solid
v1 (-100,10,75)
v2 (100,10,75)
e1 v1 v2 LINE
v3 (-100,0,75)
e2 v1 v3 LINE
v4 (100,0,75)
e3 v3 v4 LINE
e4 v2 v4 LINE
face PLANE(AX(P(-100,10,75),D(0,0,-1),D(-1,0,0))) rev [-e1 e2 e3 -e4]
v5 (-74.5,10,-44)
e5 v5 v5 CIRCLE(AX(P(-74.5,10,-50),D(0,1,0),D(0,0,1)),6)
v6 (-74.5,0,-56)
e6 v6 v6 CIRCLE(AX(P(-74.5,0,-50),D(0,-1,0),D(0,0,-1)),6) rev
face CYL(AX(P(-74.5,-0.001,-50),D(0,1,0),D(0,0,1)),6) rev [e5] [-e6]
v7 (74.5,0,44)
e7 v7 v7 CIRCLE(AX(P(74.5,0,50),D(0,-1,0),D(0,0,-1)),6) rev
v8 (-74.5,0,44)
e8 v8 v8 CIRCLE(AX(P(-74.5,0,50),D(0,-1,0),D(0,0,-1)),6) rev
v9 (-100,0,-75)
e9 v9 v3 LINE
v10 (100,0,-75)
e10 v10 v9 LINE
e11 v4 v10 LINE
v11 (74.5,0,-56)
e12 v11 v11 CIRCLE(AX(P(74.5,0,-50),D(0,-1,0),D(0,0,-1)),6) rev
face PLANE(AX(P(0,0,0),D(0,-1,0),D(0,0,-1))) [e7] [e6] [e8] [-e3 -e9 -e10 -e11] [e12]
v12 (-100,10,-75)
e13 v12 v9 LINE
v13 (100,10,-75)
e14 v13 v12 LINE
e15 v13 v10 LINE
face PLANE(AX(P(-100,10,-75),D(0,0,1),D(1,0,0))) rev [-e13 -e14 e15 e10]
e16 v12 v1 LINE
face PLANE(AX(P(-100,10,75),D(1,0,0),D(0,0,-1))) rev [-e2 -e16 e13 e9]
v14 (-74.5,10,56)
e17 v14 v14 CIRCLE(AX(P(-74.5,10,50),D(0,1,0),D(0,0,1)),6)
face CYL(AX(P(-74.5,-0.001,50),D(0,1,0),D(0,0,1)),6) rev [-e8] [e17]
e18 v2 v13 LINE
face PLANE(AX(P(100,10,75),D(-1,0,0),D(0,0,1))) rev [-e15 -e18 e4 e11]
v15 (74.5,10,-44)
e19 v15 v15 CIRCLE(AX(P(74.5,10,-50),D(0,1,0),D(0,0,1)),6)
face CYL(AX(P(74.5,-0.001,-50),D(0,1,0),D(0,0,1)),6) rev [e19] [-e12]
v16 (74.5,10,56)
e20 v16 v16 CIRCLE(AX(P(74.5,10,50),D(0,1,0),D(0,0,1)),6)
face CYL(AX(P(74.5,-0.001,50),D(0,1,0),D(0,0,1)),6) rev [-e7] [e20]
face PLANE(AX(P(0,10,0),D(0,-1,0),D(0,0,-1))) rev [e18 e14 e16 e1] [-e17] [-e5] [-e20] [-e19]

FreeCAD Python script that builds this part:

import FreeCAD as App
import Part
import Sketcher
Q = App.Units.Quantity


def add_polygon(sketch, points):
    """Adds a closed chain of lines whose ends are joined by coincident constraints."""
    first, n = sketch.GeometryCount, len(points)
    for a, b in zip(points, points[1:] + points[:1]):
        sketch.addGeometry(Part.LineSegment(App.Vector(*a, 0), App.Vector(*b, 0)), False)
    for i in range(n):
        sketch.addConstraint(Sketcher.Constraint("Coincident", first + i, 2, first + (i + 1) % n, 1))

doc = App.newDocument("Part")
params = doc.addObject("Spreadsheet::Sheet", "Params")
for row, (alias, value) in enumerate([
    ("sketch1_width", "200 mm"),
    ("sketch1_height", "150 mm"),
    ("pad1_length", "10 mm"),
    ("sketch2_diameter", "12 mm"),
    ("sketch3_diameter", "12 mm"),
    ("sketch4_diameter", "12 mm"),
    ("sketch5_diameter", "12 mm"),
], start=1):
    params.set(f"A{row}", alias)
    params.set(f"B{row}", "=" + value)
    params.setAlias(f"B{row}", alias)

body = doc.addObject("PartDesign::Body", "Body")

sketch1 = body.newObject("Sketcher::SketchObject", "Sketch")
sketch1.AttachmentSupport = (doc.getObject("XZ_Plane"), [""])
sketch1.MapMode = "FlatFace"
add_polygon(sketch1, [(-100, -75), (-100, 75), (100, 75), (100, -75)])
sketch1.addConstraint([
    Sketcher.Constraint("Vertical", 0),
    Sketcher.Constraint("Horizontal", 1),
    Sketcher.Constraint("Vertical", 2),
    Sketcher.Constraint("Horizontal", 3),
    Sketcher.Constraint("Symmetric", 0, 2, 2, 2, -1, 1),
    Sketcher.Constraint("DistanceX", 1, 1, 1, 2, Q("200 mm")),
    Sketcher.Constraint("DistanceY", 0, 1, 0, 2, Q("150 mm")),
])
sketch1.setExpression("Constraints[9]", "Params.sketch1_width")
sketch1.setExpression("Constraints[10]", "Params.sketch1_height")
pad1 = body.newObject("PartDesign::Pad", "Pad")
pad1.Profile = sketch1
pad1.setExpression("Length", "Params.pad1_length")
pad1.Reversed = True

sketch2 = body.newObject("Sketcher::SketchObject", "Sketch001")
sketch2.AttachmentSupport = (doc.getObject("XZ_Plane"), [""])
sketch2.MapMode = "FlatFace"
sketch2.AttachmentOffset = App.Placement(App.Vector(0, 0, -10), App.Rotation())
sketch2.addGeometry(Part.Circle(App.Vector(74.5, -50, 0), App.Vector(0, 0, 1), 6), False)
sketch2.addConstraint([
    Sketcher.Constraint("Diameter", 0, Q("12 mm")),
    Sketcher.Constraint("DistanceY", 0, 3, -1, 1, Q("50 mm")),
    Sketcher.Constraint("DistanceX", -1, 1, 0, 3, Q("74.5 mm")),
])
sketch2.setExpression("Constraints[0]", "Params.sketch2_diameter")
pocket1 = body.newObject("PartDesign::Pocket", "Pocket")
pocket1.Profile = sketch2
pocket1.Type = "UpToFirst"
pocket1.Reversed = True

sketch3 = body.newObject("Sketcher::SketchObject", "Sketch002")
sketch3.AttachmentSupport = (doc.getObject("XZ_Plane"), [""])
sketch3.MapMode = "FlatFace"
sketch3.AttachmentOffset = App.Placement(App.Vector(0, 0, -10), App.Rotation())
sketch3.addGeometry(Part.Circle(App.Vector(74.5, 50, 0), App.Vector(0, 0, 1), 6), False)
sketch3.addConstraint([
    Sketcher.Constraint("Diameter", 0, Q("12 mm")),
    Sketcher.Constraint("DistanceY", -1, 1, 0, 3, Q("50 mm")),
    Sketcher.Constraint("DistanceX", -1, 1, 0, 3, Q("74.5 mm")),
])
sketch3.setExpression("Constraints[0]", "Params.sketch3_diameter")
pocket2 = body.newObject("PartDesign::Pocket", "Pocket001")
pocket2.Profile = sketch3
pocket2.Type = "UpToFirst"
pocket2.Reversed = True

sketch4 = body.newObject("Sketcher::SketchObject", "Sketch003")
sketch4.AttachmentSupport = (doc.getObject("XZ_Plane"), [""])
sketch4.MapMode = "FlatFace"
sketch4.AttachmentOffset = App.Placement(App.Vector(0, 0, -10), App.Rotation())
sketch4.addGeometry(Part.Circle(App.Vector(-74.5, 50, 0), App.Vector(0, 0, 1), 6), False)
sketch4.addConstraint([
    Sketcher.Constraint("Diameter", 0, Q("12 mm")),
    Sketcher.Constraint("DistanceY", -1, 1, 0, 3, Q("50 mm")),
    Sketcher.Constraint("DistanceX", 0, 3, -1, 1, Q("74.5 mm")),
])
sketch4.setExpression("Constraints[0]", "Params.sketch4_diameter")
pocket3 = body.newObject("PartDesign::Pocket", "Pocket002")
pocket3.Profile = sketch4
pocket3.Type = "UpToFirst"
pocket3.Reversed = True

sketch5 = body.newObject("Sketcher::SketchObject", "Sketch004")
sketch5.AttachmentSupport = (doc.getObject("XZ_Plane"), [""])
sketch5.MapMode = "FlatFace"
sketch5.AttachmentOffset = App.Placement(App.Vector(0, 0, -10), App.Rotation())
sketch5.addGeometry(Part.Circle(App.Vector(-74.5, -50, 0), App.Vector(0, 0, 1), 6), False)
sketch5.addConstraint([
    Sketcher.Constraint("Diameter", 0, Q("12 mm")),
    Sketcher.Constraint("DistanceY", 0, 3, -1, 1, Q("50 mm")),
    Sketcher.Constraint("DistanceX", 0, 3, -1, 1, Q("74.5 mm")),
])
sketch5.setExpression("Constraints[0]", "Params.sketch5_diameter")
pocket4 = body.newObject("PartDesign::Pocket", "Pocket003")
pocket4.Profile = sketch5
pocket4.Type = "UpToFirst"
pocket4.Reversed = True

doc.recompute()
